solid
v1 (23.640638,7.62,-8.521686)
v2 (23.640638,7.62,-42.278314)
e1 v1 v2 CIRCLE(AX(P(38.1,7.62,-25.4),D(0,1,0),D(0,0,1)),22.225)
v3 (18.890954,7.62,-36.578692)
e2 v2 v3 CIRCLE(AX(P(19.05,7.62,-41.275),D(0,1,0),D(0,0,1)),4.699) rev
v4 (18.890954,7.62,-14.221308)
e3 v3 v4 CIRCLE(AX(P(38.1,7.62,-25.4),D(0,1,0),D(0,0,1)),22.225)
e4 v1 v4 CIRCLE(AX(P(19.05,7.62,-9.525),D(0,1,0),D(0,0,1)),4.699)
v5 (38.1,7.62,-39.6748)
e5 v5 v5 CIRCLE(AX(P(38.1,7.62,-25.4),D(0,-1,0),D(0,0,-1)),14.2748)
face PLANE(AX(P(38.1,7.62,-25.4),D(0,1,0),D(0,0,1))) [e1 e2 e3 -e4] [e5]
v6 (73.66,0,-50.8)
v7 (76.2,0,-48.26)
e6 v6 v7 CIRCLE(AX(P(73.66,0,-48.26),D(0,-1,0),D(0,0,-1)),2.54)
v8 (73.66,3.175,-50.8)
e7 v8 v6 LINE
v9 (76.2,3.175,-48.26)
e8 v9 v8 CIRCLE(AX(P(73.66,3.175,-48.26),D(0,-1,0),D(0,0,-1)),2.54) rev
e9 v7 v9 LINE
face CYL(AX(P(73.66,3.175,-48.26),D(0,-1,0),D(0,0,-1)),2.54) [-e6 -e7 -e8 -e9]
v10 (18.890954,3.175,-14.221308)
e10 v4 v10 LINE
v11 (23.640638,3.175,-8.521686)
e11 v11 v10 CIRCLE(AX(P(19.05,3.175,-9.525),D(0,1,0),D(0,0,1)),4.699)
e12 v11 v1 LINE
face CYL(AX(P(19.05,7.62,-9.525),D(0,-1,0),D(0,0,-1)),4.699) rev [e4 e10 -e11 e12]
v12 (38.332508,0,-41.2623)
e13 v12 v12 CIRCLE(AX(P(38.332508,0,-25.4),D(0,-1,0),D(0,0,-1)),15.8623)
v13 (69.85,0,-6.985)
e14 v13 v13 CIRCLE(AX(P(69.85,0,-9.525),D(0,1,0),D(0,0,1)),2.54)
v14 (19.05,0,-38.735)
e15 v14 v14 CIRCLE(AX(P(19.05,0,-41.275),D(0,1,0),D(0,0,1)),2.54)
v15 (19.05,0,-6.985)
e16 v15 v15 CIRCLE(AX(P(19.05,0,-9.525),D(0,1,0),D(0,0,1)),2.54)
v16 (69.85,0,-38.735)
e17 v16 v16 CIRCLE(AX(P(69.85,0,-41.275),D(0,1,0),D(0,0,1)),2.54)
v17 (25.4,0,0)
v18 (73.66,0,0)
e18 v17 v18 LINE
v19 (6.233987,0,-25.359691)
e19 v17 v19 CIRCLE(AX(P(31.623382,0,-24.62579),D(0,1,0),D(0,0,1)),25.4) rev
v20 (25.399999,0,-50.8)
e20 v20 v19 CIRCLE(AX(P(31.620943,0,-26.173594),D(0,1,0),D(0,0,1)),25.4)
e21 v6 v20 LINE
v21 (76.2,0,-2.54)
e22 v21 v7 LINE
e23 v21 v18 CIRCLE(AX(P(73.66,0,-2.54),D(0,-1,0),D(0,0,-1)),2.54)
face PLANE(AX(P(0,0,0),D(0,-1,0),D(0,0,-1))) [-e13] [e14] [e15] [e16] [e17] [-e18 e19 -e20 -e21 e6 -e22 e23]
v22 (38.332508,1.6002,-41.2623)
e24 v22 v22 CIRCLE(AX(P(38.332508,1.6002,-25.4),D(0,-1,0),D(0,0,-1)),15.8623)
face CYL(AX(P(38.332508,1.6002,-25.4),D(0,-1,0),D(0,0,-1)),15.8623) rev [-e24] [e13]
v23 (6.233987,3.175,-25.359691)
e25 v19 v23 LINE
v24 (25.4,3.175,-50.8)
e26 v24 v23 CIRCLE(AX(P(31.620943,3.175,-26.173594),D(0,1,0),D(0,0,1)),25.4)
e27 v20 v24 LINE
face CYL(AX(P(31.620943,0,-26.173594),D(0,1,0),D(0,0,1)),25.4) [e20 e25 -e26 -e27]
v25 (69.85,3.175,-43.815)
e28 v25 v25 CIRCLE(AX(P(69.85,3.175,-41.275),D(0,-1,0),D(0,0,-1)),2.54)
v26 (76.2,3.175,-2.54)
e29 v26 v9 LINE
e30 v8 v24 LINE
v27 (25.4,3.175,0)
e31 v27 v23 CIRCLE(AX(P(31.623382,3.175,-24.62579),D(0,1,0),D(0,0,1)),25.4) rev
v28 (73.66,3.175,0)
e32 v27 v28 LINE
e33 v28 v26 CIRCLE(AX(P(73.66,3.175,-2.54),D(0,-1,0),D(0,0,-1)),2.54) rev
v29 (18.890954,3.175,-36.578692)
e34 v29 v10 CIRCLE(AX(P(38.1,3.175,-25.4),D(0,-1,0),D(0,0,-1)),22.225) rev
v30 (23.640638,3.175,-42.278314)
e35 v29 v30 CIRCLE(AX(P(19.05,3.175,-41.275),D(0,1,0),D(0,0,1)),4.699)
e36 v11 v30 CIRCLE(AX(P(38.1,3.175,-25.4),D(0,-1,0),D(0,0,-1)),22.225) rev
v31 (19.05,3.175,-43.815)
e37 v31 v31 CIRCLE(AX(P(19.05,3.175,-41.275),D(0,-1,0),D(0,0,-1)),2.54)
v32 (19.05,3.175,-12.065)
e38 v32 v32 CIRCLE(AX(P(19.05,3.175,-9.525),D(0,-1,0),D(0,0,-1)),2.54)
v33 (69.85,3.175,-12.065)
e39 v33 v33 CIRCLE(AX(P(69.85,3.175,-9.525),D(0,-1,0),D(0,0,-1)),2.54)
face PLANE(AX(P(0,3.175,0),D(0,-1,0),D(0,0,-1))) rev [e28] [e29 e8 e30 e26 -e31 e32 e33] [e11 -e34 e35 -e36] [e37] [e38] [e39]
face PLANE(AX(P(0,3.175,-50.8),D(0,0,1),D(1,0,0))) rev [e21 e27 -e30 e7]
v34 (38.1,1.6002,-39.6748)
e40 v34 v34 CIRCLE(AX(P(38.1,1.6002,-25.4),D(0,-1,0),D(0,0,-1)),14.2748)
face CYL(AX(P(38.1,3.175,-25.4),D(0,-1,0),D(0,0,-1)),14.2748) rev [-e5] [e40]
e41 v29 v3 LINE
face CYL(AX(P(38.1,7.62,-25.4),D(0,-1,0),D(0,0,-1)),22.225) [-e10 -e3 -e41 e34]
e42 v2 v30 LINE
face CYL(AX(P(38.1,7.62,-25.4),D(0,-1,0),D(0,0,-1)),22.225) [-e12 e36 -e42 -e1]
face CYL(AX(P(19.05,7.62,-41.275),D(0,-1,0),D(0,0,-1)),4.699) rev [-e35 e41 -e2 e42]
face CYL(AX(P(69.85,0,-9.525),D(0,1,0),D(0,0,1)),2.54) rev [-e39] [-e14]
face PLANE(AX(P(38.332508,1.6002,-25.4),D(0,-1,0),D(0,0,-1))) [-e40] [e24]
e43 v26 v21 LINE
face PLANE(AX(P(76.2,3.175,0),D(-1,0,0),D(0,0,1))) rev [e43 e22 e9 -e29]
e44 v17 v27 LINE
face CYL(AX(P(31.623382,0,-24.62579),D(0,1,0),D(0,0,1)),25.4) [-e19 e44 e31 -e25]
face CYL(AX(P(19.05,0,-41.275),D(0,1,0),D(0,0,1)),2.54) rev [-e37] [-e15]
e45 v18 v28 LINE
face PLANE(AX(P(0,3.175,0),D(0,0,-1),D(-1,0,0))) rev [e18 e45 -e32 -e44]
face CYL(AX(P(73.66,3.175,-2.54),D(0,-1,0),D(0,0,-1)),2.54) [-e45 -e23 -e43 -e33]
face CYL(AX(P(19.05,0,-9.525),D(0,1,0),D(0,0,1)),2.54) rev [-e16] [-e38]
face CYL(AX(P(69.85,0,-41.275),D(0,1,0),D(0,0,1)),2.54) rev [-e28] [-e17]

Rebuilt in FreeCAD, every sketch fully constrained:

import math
import FreeCAD as App
import Part
import Sketcher
Q = App.Units.Quantity


def edges_at(feature, points):
    """Names of the edges that pass closest to the given points."""
    edges = feature.Shape.Edges
    near = lambda p: min(range(len(edges)), key=lambda i: edges[i].distToShape(Part.Vertex(*p))[0])
    return sorted({f"Edge{near(p) + 1}" for p in points})

doc = App.newDocument("Part")
body = doc.addObject("PartDesign::Body", "Body")

# Sketch on XZ plane
sketch1 = body.newObject("Sketcher::SketchObject", "Sketch")
sketch1.AttachmentSupport = (doc.getObject("XZ_Plane"), [""])
sketch1.MapMode = "FlatFace"
sketch1.addGeometry(Part.LineSegment(App.Vector(0, -50.8, 0), App.Vector(0, 0, 0)), False)
sketch1.addGeometry(Part.LineSegment(App.Vector(0, 0, 0), App.Vector(76.2, 0, 0)), False)
sketch1.addGeometry(Part.LineSegment(App.Vector(76.2, 0, 0), App.Vector(76.2, -50.8, 0)), False)
sketch1.addGeometry(Part.LineSegment(App.Vector(76.2, -50.8, 0), App.Vector(0, -50.8, 0)), False)
sketch1.addGeometry(Part.Circle(App.Vector(38.1, -25.4, 0), App.Vector(0, 0, 1), 14.2748), False)
sketch1.addConstraint(Sketcher.Constraint("Coincident", 0, 2, 1, 1))
sketch1.addConstraint(Sketcher.Constraint("Coincident", 1, 2, 2, 1))
sketch1.addConstraint(Sketcher.Constraint("Coincident", 2, 2, 3, 1))
sketch1.addConstraint(Sketcher.Constraint("Coincident", 3, 2, 0, 1))
sketch1.addConstraint(Sketcher.Constraint("Vertical", 0))
sketch1.addConstraint(Sketcher.Constraint("Horizontal", 1))
sketch1.addConstraint(Sketcher.Constraint("Vertical", 2))
sketch1.addConstraint(Sketcher.Constraint("Horizontal", 3))
sketch1.addConstraint(Sketcher.Constraint("Coincident", 0, 2, -1, 1))
sketch1.addConstraint(Sketcher.Constraint("DistanceX", 1, 1, 1, 2, Q("3 in")))
sketch1.addConstraint(Sketcher.Constraint("DistanceY", 0, 1, 0, 2, Q("2 in")))
sketch1.addConstraint(Sketcher.Constraint("Diameter", 4, Q("1.124 in")))
sketch1.addConstraint(Sketcher.Constraint("DistanceY", 4, 3, -1, 1, Q("1 in")))
sketch1.addConstraint(Sketcher.Constraint("DistanceX", -1, 1, 4, 3, Q("1.5 in")))
pad1 = body.newObject("PartDesign::Pad", "Pad")
pad1.Profile = sketch1
pad1.Length = Q("0.125 in")
pad1.Reversed = True

# Sketch on XZ plane
sketch2 = body.newObject("Sketcher::SketchObject", "Sketch001")
sketch2.AttachmentSupport = (doc.getObject("XZ_Plane"), [""])
sketch2.MapMode = "FlatFace"
sketch2.AttachmentOffset = App.Placement(App.Vector(0, 0, -0.125 * 25.4), App.Rotation())
sketch2.addGeometry(Part.Circle(App.Vector(38.1, -25.4, 0), App.Vector(0, 0, 1), 22.225), False)
sketch2.addConstraint(Sketcher.Constraint("Diameter", 0, Q("1.75 in")))
sketch2.addConstraint(Sketcher.Constraint("DistanceY", 0, 3, -1, 1, Q("1 in")))
sketch2.addConstraint(Sketcher.Constraint("DistanceX", -1, 1, 0, 3, Q("1.5 in")))
pad2 = body.newObject("PartDesign::Pad", "Pad001")
pad2.Profile = sketch2
pad2.Length = Q("0.175 in")
pad2.Reversed = True

# Sketch on XZ plane
sketch3 = body.newObject("Sketcher::SketchObject", "Sketch002")
sketch3.AttachmentSupport = (doc.getObject("XZ_Plane"), [""])
sketch3.MapMode = "FlatFace"
sketch3.AttachmentOffset = App.Placement(App.Vector(0, 0, -0.125 * 25.4), App.Rotation())
sketch3.addGeometry(Part.Circle(App.Vector(38.1, -25.4, 0), App.Vector(0, 0, 1), 14.2748), False)
sketch3.addConstraint(Sketcher.Constraint("Diameter", 0, Q("1.124 in")))
sketch3.addConstraint(Sketcher.Constraint("DistanceY", 0, 3, -1, 1, Q("1 in")))
sketch3.addConstraint(Sketcher.Constraint("DistanceX", -1, 1, 0, 3, Q("1.5 in")))
pocket1 = body.newObject("PartDesign::Pocket", "Pocket")
pocket1.Profile = sketch3
pocket1.Type = "ThroughAll"

# Sketch on XZ plane
sketch4 = body.newObject("Sketcher::SketchObject", "Sketch003")
sketch4.AttachmentSupport = (doc.getObject("XZ_Plane"), [""])
sketch4.MapMode = "FlatFace"
sketch4.addGeometry(Part.Circle(App.Vector(38.332508, -25.4, 0), App.Vector(0, 0, 1), 15.8623), False)
sketch4.addConstraint(Sketcher.Constraint("Diameter", 0, Q("1.249 in")))
sketch4.addConstraint(Sketcher.Constraint("DistanceY", 0, 3, -1, 1, Q("1 in")))
sketch4.addConstraint(Sketcher.Constraint("DistanceX", -1, 1, 0, 3, Q("38.332508 mm")))
pocket2 = body.newObject("PartDesign::Pocket", "Pocket001")
pocket2.Profile = sketch4
pocket2.Length = Q("0.063 in")
doc.recompute()

fillet = body.newObject("PartDesign::Fillet", "Fillet")
fillet.Base = (pocket2, edges_at(pocket2, [
    (0, 1.587, -50.8),
    (76.2, 1.587, -50.8),
    (76.2, 1.587, 0),
    (0, 1.587, 0),
]))
fillet.Radius = Q("0.1 in")

# Sketch on XZ plane
sketch5 = body.newObject("Sketcher::SketchObject", "Sketch004")
sketch5.AttachmentSupport = (doc.getObject("XZ_Plane"), [""])
sketch5.MapMode = "FlatFace"
sketch5.AttachmentOffset = App.Placement(App.Vector(0, 0, -0.125 * 25.4), App.Rotation())
sketch5.addGeometry(Part.Circle(App.Vector(69.85, -41.275, 0), App.Vector(0, 0, 1), 2.54), False)
sketch5.addGeometry(Part.Circle(App.Vector(69.85, -9.525, 0), App.Vector(0, 0, 1), 2.54), False)
sketch5.addGeometry(Part.Circle(App.Vector(19.05, -9.525, 0), App.Vector(0, 0, 1), 2.54), False)
sketch5.addGeometry(Part.Circle(App.Vector(19.05, -41.275, 0), App.Vector(0, 0, 1), 2.54), False)
sketch5.addConstraint(Sketcher.Constraint("Equal", 0, 1))
sketch5.addConstraint(Sketcher.Constraint("Equal", 1, 2))
sketch5.addConstraint(Sketcher.Constraint("Equal", 2, 3))
sketch5.addConstraint(Sketcher.Constraint("Horizontal", 1, 3, 2, 3))
sketch5.addConstraint(Sketcher.Constraint("Horizontal", 0, 3, 3, 3))
sketch5.addConstraint(Sketcher.Constraint("Vertical", 0, 3, 1, 3))
sketch5.addConstraint(Sketcher.Constraint("Vertical", 2, 3, 3, 3))
sketch5.addConstraint(Sketcher.Constraint("Diameter", 0, Q("0.2 in")))
sketch5.addConstraint(Sketcher.Constraint("DistanceX", 2, 3, 1, 3, Q("2 in")))
sketch5.addConstraint(Sketcher.Constraint("DistanceX", -1, 1, 0, 3, Q("2.75 in")))
sketch5.addConstraint(Sketcher.Constraint("DistanceY", 0, 3, 1, 3, Q("1.25 in")))
sketch5.addConstraint(Sketcher.Constraint("DistanceY", 0, 3, -1, 1, Q("1.625 in")))
pocket3 = body.newObject("PartDesign::Pocket", "Pocket002")
pocket3.Profile = sketch5
pocket3.Type = "ThroughAll"
pocket3.Midplane = True

# Sketch on XZ plane
sketch6 = body.newObject("Sketcher::SketchObject", "Sketch005")
sketch6.AttachmentSupport = (doc.getObject("XZ_Plane"), [""])
sketch6.MapMode = "FlatFace"
sketch6.AttachmentOffset = App.Placement(App.Vector(0, 0, -0.125 * 25.4), App.Rotation())
sketch6.addGeometry(Part.LineSegment(App.Vector(0, -48.26, 0), App.Vector(0, -2.54, 0)), False)
sketch6.addGeometry(Part.ArcOfCircle(Part.Circle(App.Vector(2.54, -2.54, 0), App.Vector(0, 0, 1), 2.54), math.radians(90), math.radians(180)), False)
sketch6.addGeometry(Part.LineSegment(App.Vector(2.54, 0, 0), App.Vector(25.4, 0, 0)), False)
sketch6.addGeometry(Part.ArcOfCircle(Part.Circle(App.Vector(31.623382, -24.62579, 0), App.Vector(0, 0, 1), 25.4), math.radians(104.182722), math.radians(181.655721)), False)
sketch6.addGeometry(Part.ArcOfCircle(Part.Circle(App.Vector(31.620943, -26.173594, 0), App.Vector(0, 0, 1), 25.4), math.radians(178.163732), math.radians(255.82295)), False)
sketch6.addGeometry(Part.LineSegment(App.Vector(25.399999, -50.8, 0), App.Vector(2.54, -50.8, 0)), False)
sketch6.addGeometry(Part.ArcOfCircle(Part.Circle(App.Vector(2.54, -48.26, 0), App.Vector(0, 0, 1), 2.54), math.radians(-180), math.radians(-90)), False)
sketch6.addConstraint(Sketcher.Constraint("Tangent", 0, 2, 1, 2))
sketch6.addConstraint(Sketcher.Constraint("Tangent", 1, 1, 2, 1))
sketch6.addConstraint(Sketcher.Constraint("Coincident", 2, 2, 3, 1))
sketch6.addConstraint(Sketcher.Constraint("Coincident", 3, 2, 4, 1))
sketch6.addConstraint(Sketcher.Constraint("Coincident", 4, 2, 5, 1))
sketch6.addConstraint(Sketcher.Constraint("Tangent", 5, 2, 6, 2))
sketch6.addConstraint(Sketcher.Constraint("Tangent", 6, 1, 0, 1))
sketch6.addConstraint(Sketcher.Constraint("Vertical", 0))
sketch6.addConstraint(Sketcher.Constraint("Horizontal", 2))
sketch6.addConstraint(Sketcher.Constraint("Horizontal", 5))
sketch6.addConstraint(Sketcher.Constraint("Equal", 3, 4))
sketch6.addConstraint(Sketcher.Constraint("Equal", 1, 6))
sketch6.addConstraint(Sketcher.Constraint("PointOnObject", 0, 2, -2))
sketch6.addConstraint(Sketcher.Constraint("PointOnObject", 1, 1, -1))
sketch6.addConstraint(Sketcher.Constraint("Vertical", 2, 2, 4, 2))
sketch6.addConstraint(Sketcher.Constraint("Radius", 3, Q("1 in")))
sketch6.addConstraint(Sketcher.Constraint("Radius", 1, Q("0.1 in")))
sketch6.addConstraint(Sketcher.Constraint("DistanceX", 2, 1, 2, 2, Q("0.9 in")))
sketch6.addConstraint(Sketcher.Constraint("DistanceY", 0, 1, 0, 2, Q("1.8 in")))
sketch6.addConstraint(Sketcher.Constraint("DistanceY", 3, 2, 3, 3, Q("0.733901 mm")))
sketch6.addConstraint(Sketcher.Constraint("DistanceX", -1, 1, 3, 3, Q("31.623382 mm")))
pocket4 = body.newObject("PartDesign::Pocket", "Pocket003")
pocket4.Profile = sketch6
pocket4.Type = "ThroughAll"
pocket4.Reversed = True

# Sketch on XZ plane
sketch7 = body.newObject("Sketcher::SketchObject", "Sketch006")
sketch7.AttachmentSupport = (doc.getObject("XZ_Plane"), [""])
sketch7.MapMode = "FlatFace"
sketch7.AttachmentOffset = App.Placement(App.Vector(0, 0, -0.125 * 25.4), App.Rotation())
sketch7.addGeometry(Part.Circle(App.Vector(19.05, -9.525, 0), App.Vector(0, 0, 1), 4.699), False)
sketch7.addConstraint(Sketcher.Constraint("Diameter", 0, Q("0.37 in")))
sketch7.addConstraint(Sketcher.Constraint("DistanceX", -1, 1, 0, 3, Q("0.75 in")))
sketch7.addConstraint(Sketcher.Constraint("DistanceY", 0, 3, -1, 1, Q("0.375 in")))
pocket5 = body.newObject("PartDesign::Pocket", "Pocket004")
pocket5.Profile = sketch7
pocket5.Type = "ThroughAll"

# Sketch on XZ plane
sketch8 = body.newObject("Sketcher::SketchObject", "Sketch007")
sketch8.AttachmentSupport = (doc.getObject("XZ_Plane"), [""])
sketch8.MapMode = "FlatFace"
sketch8.AttachmentOffset = App.Placement(App.Vector(0, 0, -0.125 * 25.4), App.Rotation())
sketch8.addGeometry(Part.Circle(App.Vector(19.05, -41.275, 0), App.Vector(0, 0, 1), 4.699), False)
sketch8.addConstraint(Sketcher.Constraint("Diameter", 0, Q("0.37 in")))
sketch8.addConstraint(Sketcher.Constraint("DistanceX", -1, 1, 0, 3, Q("0.75 in")))
sketch8.addConstraint(Sketcher.Constraint("DistanceY", 0, 3, -1, 1, Q("1.625 in")))
pocket6 = body.newObject("PartDesign::Pocket", "Pocket005")
pocket6.Profile = sketch8
pocket6.Type = "ThroughAll"

doc.recompute()
